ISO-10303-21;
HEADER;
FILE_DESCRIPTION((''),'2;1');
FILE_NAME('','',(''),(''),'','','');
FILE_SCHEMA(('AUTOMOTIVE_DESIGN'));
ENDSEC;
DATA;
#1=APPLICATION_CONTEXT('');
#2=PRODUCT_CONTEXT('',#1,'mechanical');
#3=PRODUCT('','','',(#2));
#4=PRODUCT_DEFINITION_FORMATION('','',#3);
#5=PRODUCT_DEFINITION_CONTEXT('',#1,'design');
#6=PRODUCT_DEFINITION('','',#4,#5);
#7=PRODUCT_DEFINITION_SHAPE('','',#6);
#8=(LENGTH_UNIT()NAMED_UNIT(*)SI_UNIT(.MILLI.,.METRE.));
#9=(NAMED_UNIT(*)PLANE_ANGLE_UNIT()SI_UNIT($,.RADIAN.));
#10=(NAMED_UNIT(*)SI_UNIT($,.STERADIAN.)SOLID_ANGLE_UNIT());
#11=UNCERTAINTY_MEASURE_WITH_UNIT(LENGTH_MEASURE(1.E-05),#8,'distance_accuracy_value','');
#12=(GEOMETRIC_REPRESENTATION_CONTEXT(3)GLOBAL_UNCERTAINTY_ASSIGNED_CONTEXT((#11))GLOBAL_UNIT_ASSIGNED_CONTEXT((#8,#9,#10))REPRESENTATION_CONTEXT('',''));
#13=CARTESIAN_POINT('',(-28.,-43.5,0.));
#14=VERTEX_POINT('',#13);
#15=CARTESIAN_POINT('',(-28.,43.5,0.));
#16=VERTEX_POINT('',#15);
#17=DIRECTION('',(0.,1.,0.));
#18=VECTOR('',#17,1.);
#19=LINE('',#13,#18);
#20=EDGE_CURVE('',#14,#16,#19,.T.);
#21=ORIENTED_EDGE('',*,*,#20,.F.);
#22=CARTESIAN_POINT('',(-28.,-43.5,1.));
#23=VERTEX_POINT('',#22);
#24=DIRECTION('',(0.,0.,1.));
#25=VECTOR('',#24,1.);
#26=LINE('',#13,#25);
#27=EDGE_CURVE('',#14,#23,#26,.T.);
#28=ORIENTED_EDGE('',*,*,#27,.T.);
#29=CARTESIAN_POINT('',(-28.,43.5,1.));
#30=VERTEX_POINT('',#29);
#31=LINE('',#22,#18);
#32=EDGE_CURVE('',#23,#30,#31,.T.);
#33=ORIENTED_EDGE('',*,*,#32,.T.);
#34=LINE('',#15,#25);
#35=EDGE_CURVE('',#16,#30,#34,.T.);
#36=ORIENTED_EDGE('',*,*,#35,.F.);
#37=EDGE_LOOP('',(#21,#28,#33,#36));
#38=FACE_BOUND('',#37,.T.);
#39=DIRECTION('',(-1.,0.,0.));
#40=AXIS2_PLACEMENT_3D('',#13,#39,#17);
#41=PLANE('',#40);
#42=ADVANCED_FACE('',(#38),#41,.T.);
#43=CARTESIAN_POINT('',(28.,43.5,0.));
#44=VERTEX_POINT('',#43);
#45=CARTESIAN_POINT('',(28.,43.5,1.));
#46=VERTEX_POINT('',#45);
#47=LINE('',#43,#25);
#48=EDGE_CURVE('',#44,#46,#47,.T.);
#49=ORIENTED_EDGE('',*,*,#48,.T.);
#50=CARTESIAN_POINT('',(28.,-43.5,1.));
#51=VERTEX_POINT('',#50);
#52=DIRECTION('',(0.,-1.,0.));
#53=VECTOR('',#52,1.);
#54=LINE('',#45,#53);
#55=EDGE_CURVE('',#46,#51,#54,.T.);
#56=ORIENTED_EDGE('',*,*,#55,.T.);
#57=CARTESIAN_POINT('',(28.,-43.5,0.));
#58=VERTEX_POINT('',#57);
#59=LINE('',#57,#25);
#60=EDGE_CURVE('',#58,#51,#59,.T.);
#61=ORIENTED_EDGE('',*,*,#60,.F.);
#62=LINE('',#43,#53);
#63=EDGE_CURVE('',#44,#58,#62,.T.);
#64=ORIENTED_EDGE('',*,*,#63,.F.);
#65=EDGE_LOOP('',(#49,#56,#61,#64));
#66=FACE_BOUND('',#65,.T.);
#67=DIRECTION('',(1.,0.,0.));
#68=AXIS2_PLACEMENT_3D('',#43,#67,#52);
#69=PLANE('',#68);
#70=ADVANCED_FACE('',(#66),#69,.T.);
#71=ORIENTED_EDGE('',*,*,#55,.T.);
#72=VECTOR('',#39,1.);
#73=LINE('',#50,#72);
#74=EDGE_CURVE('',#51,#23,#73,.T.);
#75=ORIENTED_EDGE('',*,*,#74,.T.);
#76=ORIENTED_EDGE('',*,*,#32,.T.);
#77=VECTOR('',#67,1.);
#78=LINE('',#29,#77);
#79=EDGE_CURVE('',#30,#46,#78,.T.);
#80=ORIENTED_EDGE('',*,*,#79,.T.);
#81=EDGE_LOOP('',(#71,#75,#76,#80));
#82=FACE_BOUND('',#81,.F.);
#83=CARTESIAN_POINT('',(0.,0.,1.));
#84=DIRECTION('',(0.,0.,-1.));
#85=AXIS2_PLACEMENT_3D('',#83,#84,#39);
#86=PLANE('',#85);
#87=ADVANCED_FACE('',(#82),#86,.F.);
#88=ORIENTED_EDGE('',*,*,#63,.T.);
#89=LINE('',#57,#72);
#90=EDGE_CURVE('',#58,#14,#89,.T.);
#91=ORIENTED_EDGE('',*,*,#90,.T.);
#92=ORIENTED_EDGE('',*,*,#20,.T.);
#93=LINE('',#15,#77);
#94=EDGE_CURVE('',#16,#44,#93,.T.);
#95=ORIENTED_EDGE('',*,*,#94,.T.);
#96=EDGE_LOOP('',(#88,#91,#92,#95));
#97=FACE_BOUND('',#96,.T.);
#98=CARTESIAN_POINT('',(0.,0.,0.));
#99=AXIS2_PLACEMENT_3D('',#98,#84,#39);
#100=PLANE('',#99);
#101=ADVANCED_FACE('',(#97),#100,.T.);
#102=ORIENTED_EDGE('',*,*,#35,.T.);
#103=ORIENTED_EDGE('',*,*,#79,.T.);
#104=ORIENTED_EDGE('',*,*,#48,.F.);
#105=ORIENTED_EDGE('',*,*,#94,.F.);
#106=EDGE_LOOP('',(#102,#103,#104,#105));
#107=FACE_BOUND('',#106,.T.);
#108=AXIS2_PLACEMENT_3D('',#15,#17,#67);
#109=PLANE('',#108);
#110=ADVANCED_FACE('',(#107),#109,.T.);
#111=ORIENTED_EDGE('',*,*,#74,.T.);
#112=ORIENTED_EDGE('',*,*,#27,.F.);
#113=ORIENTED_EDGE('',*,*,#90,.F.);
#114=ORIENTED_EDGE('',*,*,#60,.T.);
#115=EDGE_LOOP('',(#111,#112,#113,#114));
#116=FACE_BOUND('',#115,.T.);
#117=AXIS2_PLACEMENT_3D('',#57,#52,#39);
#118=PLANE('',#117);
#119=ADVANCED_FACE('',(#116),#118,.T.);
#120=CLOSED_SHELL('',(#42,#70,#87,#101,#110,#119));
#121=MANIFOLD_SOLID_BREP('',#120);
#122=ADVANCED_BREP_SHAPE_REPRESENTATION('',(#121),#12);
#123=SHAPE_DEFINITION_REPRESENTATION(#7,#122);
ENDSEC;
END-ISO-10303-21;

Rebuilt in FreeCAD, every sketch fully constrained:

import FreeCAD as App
import Part
import Sketcher

V = App.Vector

doc = App.newDocument("Part")
body = doc.addObject("PartDesign::Body", "Body")

# Sketch on XY plane
sketch1 = body.newObject("Sketcher::SketchObject", "Sketch")
sketch1.AttachmentSupport = (doc.getObject("XY_Plane"), [""])
sketch1.MapMode = "FlatFace"
sketch1.addGeometry([
    Part.LineSegment(V(28, 43.5, 0), V(-28, 43.5, 0)),
    Part.LineSegment(V(-28, 43.5, 0), V(-28, -43.5, 0)),
    Part.LineSegment(V(-28, -43.5, 0), V(28, -43.5, 0)),
    Part.LineSegment(V(28, -43.5, 0), V(28, 43.5, 0)),
], False)
sketch1.addConstraint([
    Sketcher.Constraint("Coincident", 0, 2, 1, 1),
    Sketcher.Constraint("Coincident", 1, 2, 2, 1),
    Sketcher.Constraint("Coincident", 2, 2, 3, 1),
    Sketcher.Constraint("Coincident", 3, 2, 0, 1),
    Sketcher.Constraint("Horizontal", 0),
    Sketcher.Constraint("Vertical", 1),
    Sketcher.Constraint("Horizontal", 2),
    Sketcher.Constraint("Vertical", 3),
    Sketcher.Constraint("Symmetric", 0, 2, 2, 2, -1, 1),
    Sketcher.Constraint("DistanceX", 0, 2, -1, 1, 28.0),
    Sketcher.Constraint("DistanceY", 1, 2, 1, 1, 87.0),
])
pad1 = body.newObject("PartDesign::Pad", "Pad")
pad1.Profile = sketch1
pad1.Length = 1

doc.recompute()
